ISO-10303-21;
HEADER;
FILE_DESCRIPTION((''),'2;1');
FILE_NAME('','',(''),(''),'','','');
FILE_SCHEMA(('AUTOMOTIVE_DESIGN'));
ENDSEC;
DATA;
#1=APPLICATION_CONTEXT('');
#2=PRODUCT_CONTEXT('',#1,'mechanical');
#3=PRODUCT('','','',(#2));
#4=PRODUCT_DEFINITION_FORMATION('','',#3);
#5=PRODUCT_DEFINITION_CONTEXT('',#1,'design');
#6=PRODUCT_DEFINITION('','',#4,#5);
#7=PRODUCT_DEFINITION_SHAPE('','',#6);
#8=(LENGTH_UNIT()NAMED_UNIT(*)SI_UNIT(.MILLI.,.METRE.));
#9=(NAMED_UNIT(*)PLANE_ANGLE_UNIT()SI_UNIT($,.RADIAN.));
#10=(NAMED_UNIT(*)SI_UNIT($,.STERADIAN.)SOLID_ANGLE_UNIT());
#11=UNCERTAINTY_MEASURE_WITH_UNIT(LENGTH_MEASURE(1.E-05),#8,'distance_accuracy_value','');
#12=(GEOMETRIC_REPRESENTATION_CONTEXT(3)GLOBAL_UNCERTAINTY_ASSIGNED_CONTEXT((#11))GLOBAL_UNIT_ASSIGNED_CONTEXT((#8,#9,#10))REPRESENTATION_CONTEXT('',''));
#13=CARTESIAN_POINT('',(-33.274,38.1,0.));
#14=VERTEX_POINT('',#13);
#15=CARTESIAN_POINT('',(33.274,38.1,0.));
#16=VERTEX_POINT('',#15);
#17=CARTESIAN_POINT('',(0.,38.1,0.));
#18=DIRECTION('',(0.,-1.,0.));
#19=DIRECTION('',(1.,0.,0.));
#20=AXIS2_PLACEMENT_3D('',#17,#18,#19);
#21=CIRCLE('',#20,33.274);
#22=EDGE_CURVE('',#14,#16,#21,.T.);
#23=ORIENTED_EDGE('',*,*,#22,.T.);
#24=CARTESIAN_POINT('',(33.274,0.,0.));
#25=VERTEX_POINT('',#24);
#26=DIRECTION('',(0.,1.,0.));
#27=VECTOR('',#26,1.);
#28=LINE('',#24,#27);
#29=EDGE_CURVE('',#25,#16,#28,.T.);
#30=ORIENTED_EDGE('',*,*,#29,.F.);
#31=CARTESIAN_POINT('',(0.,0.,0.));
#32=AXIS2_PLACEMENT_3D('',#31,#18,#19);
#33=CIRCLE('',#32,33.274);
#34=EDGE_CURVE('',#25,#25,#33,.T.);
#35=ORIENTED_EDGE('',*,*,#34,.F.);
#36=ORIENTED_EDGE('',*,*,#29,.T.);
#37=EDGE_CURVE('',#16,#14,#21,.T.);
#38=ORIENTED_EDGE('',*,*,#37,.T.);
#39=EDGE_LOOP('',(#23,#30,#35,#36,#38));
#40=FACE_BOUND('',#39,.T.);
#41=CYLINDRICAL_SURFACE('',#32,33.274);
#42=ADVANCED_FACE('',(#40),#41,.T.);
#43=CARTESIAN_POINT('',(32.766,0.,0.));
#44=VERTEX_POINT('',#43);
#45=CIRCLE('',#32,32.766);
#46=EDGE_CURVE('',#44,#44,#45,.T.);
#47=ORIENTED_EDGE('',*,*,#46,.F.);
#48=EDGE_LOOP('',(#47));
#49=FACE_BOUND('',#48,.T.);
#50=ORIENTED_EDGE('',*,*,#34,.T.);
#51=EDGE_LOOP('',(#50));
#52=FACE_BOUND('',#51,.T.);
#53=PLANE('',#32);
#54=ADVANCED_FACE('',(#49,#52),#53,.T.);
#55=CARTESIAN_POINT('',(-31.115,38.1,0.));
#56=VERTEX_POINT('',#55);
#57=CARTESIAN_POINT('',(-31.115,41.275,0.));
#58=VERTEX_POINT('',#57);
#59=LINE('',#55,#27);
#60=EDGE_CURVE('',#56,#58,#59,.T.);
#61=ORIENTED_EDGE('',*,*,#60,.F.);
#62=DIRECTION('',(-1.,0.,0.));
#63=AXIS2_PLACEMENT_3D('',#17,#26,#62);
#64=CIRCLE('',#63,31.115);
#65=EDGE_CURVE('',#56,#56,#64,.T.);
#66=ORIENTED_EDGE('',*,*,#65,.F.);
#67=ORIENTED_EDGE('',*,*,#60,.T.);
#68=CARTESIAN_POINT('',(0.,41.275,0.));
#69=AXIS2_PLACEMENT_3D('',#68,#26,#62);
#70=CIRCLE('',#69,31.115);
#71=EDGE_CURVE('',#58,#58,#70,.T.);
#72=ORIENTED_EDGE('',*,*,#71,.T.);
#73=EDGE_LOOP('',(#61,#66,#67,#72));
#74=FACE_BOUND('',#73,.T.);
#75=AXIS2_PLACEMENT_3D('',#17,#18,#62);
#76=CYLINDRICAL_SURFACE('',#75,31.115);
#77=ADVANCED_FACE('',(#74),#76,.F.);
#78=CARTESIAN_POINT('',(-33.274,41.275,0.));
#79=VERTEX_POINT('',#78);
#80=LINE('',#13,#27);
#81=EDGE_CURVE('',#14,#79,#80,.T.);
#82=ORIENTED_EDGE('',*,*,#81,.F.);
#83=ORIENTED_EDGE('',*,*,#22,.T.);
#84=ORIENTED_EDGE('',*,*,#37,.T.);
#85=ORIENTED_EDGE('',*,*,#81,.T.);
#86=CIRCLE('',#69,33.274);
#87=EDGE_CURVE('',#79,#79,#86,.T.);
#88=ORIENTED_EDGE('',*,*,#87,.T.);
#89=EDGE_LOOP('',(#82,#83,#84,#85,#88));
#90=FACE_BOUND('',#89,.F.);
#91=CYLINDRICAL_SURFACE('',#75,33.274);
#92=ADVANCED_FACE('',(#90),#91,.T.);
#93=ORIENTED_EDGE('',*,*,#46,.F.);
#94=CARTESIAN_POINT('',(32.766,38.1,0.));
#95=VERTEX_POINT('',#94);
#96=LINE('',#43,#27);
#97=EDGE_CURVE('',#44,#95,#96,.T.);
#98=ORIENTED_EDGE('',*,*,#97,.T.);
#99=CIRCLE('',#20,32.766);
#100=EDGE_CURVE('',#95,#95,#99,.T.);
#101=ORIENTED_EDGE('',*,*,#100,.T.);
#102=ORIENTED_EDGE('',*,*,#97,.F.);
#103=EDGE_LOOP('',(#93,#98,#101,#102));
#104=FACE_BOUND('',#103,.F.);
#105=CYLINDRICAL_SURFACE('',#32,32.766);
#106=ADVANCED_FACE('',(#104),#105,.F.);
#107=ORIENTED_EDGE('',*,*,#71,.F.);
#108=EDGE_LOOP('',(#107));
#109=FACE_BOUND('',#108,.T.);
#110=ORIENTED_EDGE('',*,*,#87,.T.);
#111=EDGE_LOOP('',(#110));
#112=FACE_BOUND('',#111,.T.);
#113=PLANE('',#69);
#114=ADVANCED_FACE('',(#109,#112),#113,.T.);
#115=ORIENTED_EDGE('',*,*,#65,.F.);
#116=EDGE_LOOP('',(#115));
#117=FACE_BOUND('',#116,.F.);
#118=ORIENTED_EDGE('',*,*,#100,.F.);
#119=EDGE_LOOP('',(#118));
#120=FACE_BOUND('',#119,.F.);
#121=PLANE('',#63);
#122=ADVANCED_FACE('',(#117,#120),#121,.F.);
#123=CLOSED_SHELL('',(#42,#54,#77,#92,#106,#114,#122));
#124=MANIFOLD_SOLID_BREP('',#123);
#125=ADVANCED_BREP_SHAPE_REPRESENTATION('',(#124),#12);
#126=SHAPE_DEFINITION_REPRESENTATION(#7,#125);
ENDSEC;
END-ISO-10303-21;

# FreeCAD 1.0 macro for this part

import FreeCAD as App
import Part
import Sketcher
from FreeCAD import Vector
Q = App.Units.Quantity

doc = App.newDocument("Part")
body = doc.addObject("PartDesign::Body", "Body")

# Sketch on XZ plane
sketch1 = body.newObject("Sketcher::SketchObject", "Sketch")
sketch1.AttachmentSupport = (doc.getObject("XZ_Plane"), [""])
sketch1.MapMode = "FlatFace"
sketch1.addGeometry([
    Part.Circle(Vector(0, 0, 0), Vector(0, 0, 1), 33),
    Part.Circle(Vector(0, 0, 0), Vector(0, 0, 1), 33),
], False)
sketch1.addConstraint([
    Sketcher.Constraint("Coincident", 0, 3, -1, 1),
    Sketcher.Constraint("Coincident", 1, 3, -1, 1),
    Sketcher.Constraint("Diameter", 0, Q("2.62 in")),
    Sketcher.Constraint("Diameter", 1, Q("2.58 in")),
])
pad1 = body.newObject("PartDesign::Pad", "Pad")
pad1.Profile = sketch1
pad1.Length = Q("1.5 in")
pad1.Reversed = True

# Sketch on XZ plane
sketch2 = body.newObject("Sketcher::SketchObject", "Sketch001")
sketch2.AttachmentSupport = (doc.getObject("XZ_Plane"), [""])
sketch2.MapMode = "FlatFace"
sketch2.AttachmentOffset = App.Placement(Vector(0, 0, -1.5 * 25.4), App.Rotation())
sketch2.addGeometry([
    Part.Circle(Vector(0, 0, 0), Vector(0, 0, 1), 33),
    Part.Circle(Vector(0, 0, 0), Vector(0, 0, 1), 31),
], False)
sketch2.addConstraint([
    Sketcher.Constraint("Coincident", 0, 3, -1, 1),
    Sketcher.Constraint("Coincident", 1, 3, -1, 1),
    Sketcher.Constraint("Diameter", 0, Q("2.62 in")),
    Sketcher.Constraint("Diameter", 1, Q("2.45 in")),
])
pad2 = body.newObject("PartDesign::Pad", "Pad001")
pad2.Profile = sketch2
pad2.Length = Q("0.125 in")
pad2.Reversed = True

doc.recompute()
